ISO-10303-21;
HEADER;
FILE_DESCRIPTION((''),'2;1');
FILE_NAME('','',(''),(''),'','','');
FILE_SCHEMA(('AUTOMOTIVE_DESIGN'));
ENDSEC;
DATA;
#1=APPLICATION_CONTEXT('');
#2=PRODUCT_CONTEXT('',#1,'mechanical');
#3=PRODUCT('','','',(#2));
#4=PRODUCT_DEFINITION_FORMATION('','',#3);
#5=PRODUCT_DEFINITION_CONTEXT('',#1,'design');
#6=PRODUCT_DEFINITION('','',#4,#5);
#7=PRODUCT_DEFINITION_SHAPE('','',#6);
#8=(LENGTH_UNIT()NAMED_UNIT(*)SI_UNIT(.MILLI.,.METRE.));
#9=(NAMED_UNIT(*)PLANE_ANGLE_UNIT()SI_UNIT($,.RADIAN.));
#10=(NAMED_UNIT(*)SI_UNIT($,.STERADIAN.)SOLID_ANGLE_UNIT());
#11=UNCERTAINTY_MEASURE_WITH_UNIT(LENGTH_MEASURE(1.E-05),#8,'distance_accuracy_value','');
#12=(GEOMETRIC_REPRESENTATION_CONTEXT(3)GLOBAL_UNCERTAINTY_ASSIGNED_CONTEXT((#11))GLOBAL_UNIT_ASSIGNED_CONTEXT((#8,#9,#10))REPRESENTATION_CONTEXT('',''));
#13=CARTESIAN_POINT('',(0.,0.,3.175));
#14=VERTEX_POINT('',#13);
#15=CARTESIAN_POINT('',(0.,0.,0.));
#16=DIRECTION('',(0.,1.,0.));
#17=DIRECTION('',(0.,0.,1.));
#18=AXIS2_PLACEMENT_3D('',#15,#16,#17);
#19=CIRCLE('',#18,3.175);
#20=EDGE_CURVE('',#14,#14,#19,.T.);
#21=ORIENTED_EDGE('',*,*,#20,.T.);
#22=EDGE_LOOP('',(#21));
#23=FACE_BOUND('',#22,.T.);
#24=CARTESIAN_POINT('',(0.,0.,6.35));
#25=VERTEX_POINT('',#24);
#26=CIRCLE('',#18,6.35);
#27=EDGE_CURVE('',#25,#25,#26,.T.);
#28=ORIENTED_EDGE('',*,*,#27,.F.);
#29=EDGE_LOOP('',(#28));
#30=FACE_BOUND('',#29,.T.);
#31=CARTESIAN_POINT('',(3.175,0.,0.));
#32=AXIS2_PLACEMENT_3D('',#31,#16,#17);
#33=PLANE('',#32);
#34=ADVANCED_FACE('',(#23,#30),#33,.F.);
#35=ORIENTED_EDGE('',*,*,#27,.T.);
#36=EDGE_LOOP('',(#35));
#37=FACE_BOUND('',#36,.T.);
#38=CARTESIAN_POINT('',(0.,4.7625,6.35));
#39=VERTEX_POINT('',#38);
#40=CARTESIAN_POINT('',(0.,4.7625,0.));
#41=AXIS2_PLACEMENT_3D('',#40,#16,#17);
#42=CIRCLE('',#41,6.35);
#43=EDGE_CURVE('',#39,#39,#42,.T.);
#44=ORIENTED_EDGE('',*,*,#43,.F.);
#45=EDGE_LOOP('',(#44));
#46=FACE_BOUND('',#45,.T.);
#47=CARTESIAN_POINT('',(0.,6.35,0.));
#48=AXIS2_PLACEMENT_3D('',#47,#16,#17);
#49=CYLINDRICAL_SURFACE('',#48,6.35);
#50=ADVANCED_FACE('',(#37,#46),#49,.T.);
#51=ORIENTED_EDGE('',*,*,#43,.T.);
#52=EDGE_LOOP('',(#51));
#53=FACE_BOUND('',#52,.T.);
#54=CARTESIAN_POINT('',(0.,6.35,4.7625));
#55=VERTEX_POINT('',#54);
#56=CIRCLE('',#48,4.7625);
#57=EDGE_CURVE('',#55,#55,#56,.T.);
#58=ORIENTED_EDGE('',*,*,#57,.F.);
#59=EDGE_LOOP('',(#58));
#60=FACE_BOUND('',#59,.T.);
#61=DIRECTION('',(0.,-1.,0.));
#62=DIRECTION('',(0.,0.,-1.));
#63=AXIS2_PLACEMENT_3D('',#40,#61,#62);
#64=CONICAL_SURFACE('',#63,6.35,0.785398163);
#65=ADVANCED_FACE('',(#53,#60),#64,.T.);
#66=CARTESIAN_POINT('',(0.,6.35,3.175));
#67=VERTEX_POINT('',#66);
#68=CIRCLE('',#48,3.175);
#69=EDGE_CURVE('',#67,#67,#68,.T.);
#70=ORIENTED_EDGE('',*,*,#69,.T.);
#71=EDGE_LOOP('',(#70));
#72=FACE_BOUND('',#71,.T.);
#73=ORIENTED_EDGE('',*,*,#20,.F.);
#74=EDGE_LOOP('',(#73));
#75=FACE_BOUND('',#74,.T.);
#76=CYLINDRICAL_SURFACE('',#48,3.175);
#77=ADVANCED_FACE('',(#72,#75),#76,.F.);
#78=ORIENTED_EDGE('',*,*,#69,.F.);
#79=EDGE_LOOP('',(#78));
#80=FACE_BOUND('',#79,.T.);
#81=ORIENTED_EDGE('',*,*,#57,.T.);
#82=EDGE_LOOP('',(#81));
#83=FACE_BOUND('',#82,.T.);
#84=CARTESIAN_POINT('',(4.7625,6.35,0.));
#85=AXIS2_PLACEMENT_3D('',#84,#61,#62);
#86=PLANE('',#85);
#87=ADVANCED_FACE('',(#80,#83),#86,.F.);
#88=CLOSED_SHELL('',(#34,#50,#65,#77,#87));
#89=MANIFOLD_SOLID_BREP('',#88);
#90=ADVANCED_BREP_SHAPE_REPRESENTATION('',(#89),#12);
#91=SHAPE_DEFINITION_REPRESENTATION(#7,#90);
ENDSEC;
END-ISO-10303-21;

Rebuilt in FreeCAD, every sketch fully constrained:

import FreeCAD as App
import Part
import Sketcher
from FreeCAD import Vector
Q = App.Units.Quantity

doc = App.newDocument("Part")
params = doc.addObject("Spreadsheet::Sheet", "Params")
for row, (alias, value) in enumerate([
    ("sketch1_height", "0.25 in"),
    ("sketch1_width", "0.125 in"),
    ("sketch1_width2", "0.0625 in"),
    ("revolution_angle", "360 deg"),
], start=1):
    params.set(f"A{row}", alias)
    params.set(f"B{row}", "=" + value)
    params.setAlias(f"B{row}", alias)

body = doc.addObject("PartDesign::Body", "Body")

# Sketch on XY plane
sketch1 = doc.addObject("Sketcher::SketchObject", "Sketch")
body.addObject(sketch1)
sketch1.AttachmentSupport = (doc.XY_Plane, [""])
sketch1.MapMode = "FlatFace"
sketch1.addGeometry([
    Part.LineSegment(Vector(3.2, 0, 0), Vector(6.3, 0, 0)),  # 0
    Part.LineSegment(Vector(6.3, 0, 0), Vector(6.3, 4.8, 0)),  # 1
    Part.LineSegment(Vector(6.3, 4.8, 0), Vector(4.8, 6.3, 0)),  # 2
    Part.LineSegment(Vector(4.8, 6.3, 0), Vector(3.2, 6.3, 0)),  # 3
    Part.LineSegment(Vector(3.2, 6.3, 0), Vector(3.2, 0, 0)),  # 4
], False)
sketch1.addConstraint([
    Sketcher.Constraint("Coincident", 0, 2, 1, 1),
    Sketcher.Constraint("Coincident", 1, 2, 2, 1),
    Sketcher.Constraint("Coincident", 2, 2, 3, 1),
    Sketcher.Constraint("Coincident", 3, 2, 4, 1),
    Sketcher.Constraint("Coincident", 4, 2, 0, 1),
    Sketcher.Constraint("Horizontal", 0),
    Sketcher.Constraint("Vertical", 1),
    Sketcher.Constraint("Horizontal", 3),
    Sketcher.Constraint("Vertical", 4),
    Sketcher.Constraint("PointOnObject", 0, 2, -1),
    Sketcher.Constraint("Angle", 2, Q("135 deg")),
    Sketcher.Constraint("DistanceY", 4, 2, 4, 1, Q("0.25 in")),
    Sketcher.Constraint("DistanceX", 0, 1, 0, 2, Q("0.125 in")),
    Sketcher.Constraint("DistanceX", 3, 2, 3, 1, Q("0.0625 in")),
    Sketcher.Constraint("DistanceX", -1, 1, 0, 2, Q("0.25 in")),
])
sketch1.setExpression("Constraints[11]", "Params.sketch1_height")
sketch1.setExpression("Constraints[12]", "Params.sketch1_width")
sketch1.setExpression("Constraints[13]", "Params.sketch1_width2")
revolution = doc.addObject("PartDesign::Revolution", "Revolution")
body.addObject(revolution)
revolution.Profile = sketch1
revolution.ReferenceAxis = (sketch1, ["V_Axis"])
revolution.setExpression("Angle", "Params.revolution_angle")

doc.recompute()
